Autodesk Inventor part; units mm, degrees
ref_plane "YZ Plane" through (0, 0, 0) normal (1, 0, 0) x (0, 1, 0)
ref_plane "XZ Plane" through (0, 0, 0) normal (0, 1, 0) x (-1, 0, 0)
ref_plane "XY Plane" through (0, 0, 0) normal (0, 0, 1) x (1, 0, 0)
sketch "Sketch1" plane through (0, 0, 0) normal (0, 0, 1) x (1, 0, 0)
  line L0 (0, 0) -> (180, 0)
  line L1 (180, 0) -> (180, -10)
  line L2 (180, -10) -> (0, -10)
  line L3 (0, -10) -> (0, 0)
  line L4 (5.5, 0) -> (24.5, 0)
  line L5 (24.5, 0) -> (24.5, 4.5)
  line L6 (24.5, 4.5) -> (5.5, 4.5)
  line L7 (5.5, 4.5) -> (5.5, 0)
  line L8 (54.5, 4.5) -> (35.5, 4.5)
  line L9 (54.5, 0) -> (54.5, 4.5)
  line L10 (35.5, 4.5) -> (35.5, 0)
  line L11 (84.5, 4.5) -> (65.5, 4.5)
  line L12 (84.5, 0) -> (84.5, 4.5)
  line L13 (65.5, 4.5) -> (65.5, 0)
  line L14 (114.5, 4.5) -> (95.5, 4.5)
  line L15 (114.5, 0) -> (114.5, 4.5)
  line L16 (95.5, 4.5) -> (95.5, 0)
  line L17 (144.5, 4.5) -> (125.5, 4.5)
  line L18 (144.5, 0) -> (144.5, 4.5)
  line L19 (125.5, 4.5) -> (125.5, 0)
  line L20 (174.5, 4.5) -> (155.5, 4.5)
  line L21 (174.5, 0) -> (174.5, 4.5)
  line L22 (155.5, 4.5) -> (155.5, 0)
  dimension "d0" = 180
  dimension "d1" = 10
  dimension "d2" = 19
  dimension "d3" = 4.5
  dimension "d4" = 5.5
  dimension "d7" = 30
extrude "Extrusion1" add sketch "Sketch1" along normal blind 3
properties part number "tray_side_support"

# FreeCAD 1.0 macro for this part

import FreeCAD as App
import Part
import Sketcher

V = App.Vector
Q = App.Units.Quantity


def add_polygon(sketch, points):
    """Adds a closed chain of lines whose ends are joined by coincident constraints."""
    first, n = sketch.GeometryCount, len(points)
    for a, b in zip(points, points[1:] + points[:1]):
        sketch.addGeometry(Part.LineSegment(App.Vector(*a, 0), App.Vector(*b, 0)), False)
    for i in range(n):
        sketch.addConstraint(Sketcher.Constraint("Coincident", first + i, 2, first + (i + 1) % n, 1))

doc = App.newDocument("Part")
params = doc.addObject("Spreadsheet::Sheet", "Params")
for row, (alias, value) in enumerate([
    ("sketch1_width", "180 mm"),
    ("sketch1_width2", "19 mm"),
    ("sketch1_height", "10 mm"),
    ("sketch1_width3", "5.5 mm"),
    ("sketch1_height2", "4.5 mm"),
    ("pad1_length", "3 mm"),
], start=1):
    params.set(f"A{row}", alias)
    params.set(f"B{row}", "=" + value)
    params.setAlias(f"B{row}", alias)

body = doc.addObject("PartDesign::Body", "Body")

# Sketch on XY plane
sketch1 = doc.addObject("Sketcher::SketchObject", "Sketch")
body.addObject(sketch1)
sketch1.AttachmentSupport = (doc.XY_Plane, [""])
sketch1.MapMode = "FlatFace"
add_polygon(sketch1, [(5.5, 0), (0, 0), (0, -10), (180, -10), (180, 0), (174.5, 0), (174.5, 4.5), (155.5, 4.5), (155.5, 0), (144.5, 0), (144.5, 4.5), (125.5, 4.5), (125.5, 0), (114.5, 0), (114.5, 4.5), (95.5, 4.5), (95.5, 0), (84.5, 0), (84.5, 4.5), (65.5, 4.5), (65.5, 0), (54.5, 0), (54.5, 4.5), (35.5, 4.5), (35.5, 0), (24.5, 0), (24.5, 4.5), (5.5, 4.5)])  # lines 0-27
sketch1.addConstraint([
    Sketcher.Constraint("Horizontal", 0),
    Sketcher.Constraint("Vertical", 1),
    Sketcher.Constraint("Horizontal", 2),
    Sketcher.Constraint("Vertical", 3),
    Sketcher.Constraint("Horizontal", 4),
    Sketcher.Constraint("Vertical", 5),
    Sketcher.Constraint("Horizontal", 6),
    Sketcher.Constraint("Vertical", 7),
    Sketcher.Constraint("Horizontal", 8),
    Sketcher.Constraint("Vertical", 9),
    Sketcher.Constraint("Horizontal", 10),
    Sketcher.Constraint("Vertical", 11),
    Sketcher.Constraint("Horizontal", 12),
    Sketcher.Constraint("Vertical", 13),
    Sketcher.Constraint("Horizontal", 14),
    Sketcher.Constraint("Vertical", 15),
    Sketcher.Constraint("Horizontal", 16),
    Sketcher.Constraint("Vertical", 17),
    Sketcher.Constraint("Horizontal", 18),
    Sketcher.Constraint("Vertical", 19),
    Sketcher.Constraint("Horizontal", 20),
    Sketcher.Constraint("Vertical", 21),
    Sketcher.Constraint("Horizontal", 22),
    Sketcher.Constraint("Vertical", 23),
    Sketcher.Constraint("Horizontal", 24),
    Sketcher.Constraint("Vertical", 25),
    Sketcher.Constraint("Horizontal", 26),
    Sketcher.Constraint("Vertical", 27),
    Sketcher.Constraint("Coincident", 0, 2, -1, 1),
    Sketcher.Constraint("PointOnObject", 3, 2, -1),
    Sketcher.Constraint("PointOnObject", 7, 2, -1),
    Sketcher.Constraint("PointOnObject", 11, 2, -1),
    Sketcher.Constraint("PointOnObject", 15, 2, -1),
    Sketcher.Constraint("PointOnObject", 19, 2, -1),
    Sketcher.Constraint("PointOnObject", 23, 2, -1),
    Sketcher.Constraint("Horizontal", 6, 2, 9, 2),
    Sketcher.Constraint("Horizontal", 10, 2, 13, 2),
    Sketcher.Constraint("Horizontal", 14, 2, 17, 2),
    Sketcher.Constraint("Horizontal", 18, 2, 21, 2),
    Sketcher.Constraint("Horizontal", 22, 2, 25, 2),
    Sketcher.Constraint("Equal", 0, 4),
    Sketcher.Constraint("Equal", 6, 10),
    Sketcher.Constraint("Equal", 8, 12),
    Sketcher.Constraint("Equal", 10, 14),
    Sketcher.Constraint("Equal", 12, 16),
    Sketcher.Constraint("Equal", 14, 18),
    Sketcher.Constraint("Equal", 16, 20),
    Sketcher.Constraint("Equal", 18, 22),
    Sketcher.Constraint("Equal", 20, 24),
    Sketcher.Constraint("Equal", 22, 26),
    Sketcher.Constraint("DistanceX", 2, 1, 2, 2, Q("180 mm")),
    Sketcher.Constraint("DistanceX", 6, 2, 6, 1, Q("19 mm")),
    Sketcher.Constraint("DistanceY", 1, 2, 1, 1, Q("10 mm")),
    Sketcher.Constraint("DistanceX", 0, 2, 0, 1, Q("5.5 mm")),
    Sketcher.Constraint("DistanceY", 5, 1, 5, 2, Q("4.5 mm")),
])
sketch1.setExpression("Constraints[78]", "Params.sketch1_width")
sketch1.setExpression("Constraints[79]", "Params.sketch1_width2")
sketch1.setExpression("Constraints[80]", "Params.sketch1_height")
sketch1.setExpression("Constraints[81]", "Params.sketch1_width3")
sketch1.setExpression("Constraints[82]", "Params.sketch1_height2")
pad1 = doc.addObject("PartDesign::Pad", "Pad")
body.addObject(pad1)
pad1.Profile = sketch1
pad1.setExpression("Length", "Params.pad1_length")

doc.recompute()
